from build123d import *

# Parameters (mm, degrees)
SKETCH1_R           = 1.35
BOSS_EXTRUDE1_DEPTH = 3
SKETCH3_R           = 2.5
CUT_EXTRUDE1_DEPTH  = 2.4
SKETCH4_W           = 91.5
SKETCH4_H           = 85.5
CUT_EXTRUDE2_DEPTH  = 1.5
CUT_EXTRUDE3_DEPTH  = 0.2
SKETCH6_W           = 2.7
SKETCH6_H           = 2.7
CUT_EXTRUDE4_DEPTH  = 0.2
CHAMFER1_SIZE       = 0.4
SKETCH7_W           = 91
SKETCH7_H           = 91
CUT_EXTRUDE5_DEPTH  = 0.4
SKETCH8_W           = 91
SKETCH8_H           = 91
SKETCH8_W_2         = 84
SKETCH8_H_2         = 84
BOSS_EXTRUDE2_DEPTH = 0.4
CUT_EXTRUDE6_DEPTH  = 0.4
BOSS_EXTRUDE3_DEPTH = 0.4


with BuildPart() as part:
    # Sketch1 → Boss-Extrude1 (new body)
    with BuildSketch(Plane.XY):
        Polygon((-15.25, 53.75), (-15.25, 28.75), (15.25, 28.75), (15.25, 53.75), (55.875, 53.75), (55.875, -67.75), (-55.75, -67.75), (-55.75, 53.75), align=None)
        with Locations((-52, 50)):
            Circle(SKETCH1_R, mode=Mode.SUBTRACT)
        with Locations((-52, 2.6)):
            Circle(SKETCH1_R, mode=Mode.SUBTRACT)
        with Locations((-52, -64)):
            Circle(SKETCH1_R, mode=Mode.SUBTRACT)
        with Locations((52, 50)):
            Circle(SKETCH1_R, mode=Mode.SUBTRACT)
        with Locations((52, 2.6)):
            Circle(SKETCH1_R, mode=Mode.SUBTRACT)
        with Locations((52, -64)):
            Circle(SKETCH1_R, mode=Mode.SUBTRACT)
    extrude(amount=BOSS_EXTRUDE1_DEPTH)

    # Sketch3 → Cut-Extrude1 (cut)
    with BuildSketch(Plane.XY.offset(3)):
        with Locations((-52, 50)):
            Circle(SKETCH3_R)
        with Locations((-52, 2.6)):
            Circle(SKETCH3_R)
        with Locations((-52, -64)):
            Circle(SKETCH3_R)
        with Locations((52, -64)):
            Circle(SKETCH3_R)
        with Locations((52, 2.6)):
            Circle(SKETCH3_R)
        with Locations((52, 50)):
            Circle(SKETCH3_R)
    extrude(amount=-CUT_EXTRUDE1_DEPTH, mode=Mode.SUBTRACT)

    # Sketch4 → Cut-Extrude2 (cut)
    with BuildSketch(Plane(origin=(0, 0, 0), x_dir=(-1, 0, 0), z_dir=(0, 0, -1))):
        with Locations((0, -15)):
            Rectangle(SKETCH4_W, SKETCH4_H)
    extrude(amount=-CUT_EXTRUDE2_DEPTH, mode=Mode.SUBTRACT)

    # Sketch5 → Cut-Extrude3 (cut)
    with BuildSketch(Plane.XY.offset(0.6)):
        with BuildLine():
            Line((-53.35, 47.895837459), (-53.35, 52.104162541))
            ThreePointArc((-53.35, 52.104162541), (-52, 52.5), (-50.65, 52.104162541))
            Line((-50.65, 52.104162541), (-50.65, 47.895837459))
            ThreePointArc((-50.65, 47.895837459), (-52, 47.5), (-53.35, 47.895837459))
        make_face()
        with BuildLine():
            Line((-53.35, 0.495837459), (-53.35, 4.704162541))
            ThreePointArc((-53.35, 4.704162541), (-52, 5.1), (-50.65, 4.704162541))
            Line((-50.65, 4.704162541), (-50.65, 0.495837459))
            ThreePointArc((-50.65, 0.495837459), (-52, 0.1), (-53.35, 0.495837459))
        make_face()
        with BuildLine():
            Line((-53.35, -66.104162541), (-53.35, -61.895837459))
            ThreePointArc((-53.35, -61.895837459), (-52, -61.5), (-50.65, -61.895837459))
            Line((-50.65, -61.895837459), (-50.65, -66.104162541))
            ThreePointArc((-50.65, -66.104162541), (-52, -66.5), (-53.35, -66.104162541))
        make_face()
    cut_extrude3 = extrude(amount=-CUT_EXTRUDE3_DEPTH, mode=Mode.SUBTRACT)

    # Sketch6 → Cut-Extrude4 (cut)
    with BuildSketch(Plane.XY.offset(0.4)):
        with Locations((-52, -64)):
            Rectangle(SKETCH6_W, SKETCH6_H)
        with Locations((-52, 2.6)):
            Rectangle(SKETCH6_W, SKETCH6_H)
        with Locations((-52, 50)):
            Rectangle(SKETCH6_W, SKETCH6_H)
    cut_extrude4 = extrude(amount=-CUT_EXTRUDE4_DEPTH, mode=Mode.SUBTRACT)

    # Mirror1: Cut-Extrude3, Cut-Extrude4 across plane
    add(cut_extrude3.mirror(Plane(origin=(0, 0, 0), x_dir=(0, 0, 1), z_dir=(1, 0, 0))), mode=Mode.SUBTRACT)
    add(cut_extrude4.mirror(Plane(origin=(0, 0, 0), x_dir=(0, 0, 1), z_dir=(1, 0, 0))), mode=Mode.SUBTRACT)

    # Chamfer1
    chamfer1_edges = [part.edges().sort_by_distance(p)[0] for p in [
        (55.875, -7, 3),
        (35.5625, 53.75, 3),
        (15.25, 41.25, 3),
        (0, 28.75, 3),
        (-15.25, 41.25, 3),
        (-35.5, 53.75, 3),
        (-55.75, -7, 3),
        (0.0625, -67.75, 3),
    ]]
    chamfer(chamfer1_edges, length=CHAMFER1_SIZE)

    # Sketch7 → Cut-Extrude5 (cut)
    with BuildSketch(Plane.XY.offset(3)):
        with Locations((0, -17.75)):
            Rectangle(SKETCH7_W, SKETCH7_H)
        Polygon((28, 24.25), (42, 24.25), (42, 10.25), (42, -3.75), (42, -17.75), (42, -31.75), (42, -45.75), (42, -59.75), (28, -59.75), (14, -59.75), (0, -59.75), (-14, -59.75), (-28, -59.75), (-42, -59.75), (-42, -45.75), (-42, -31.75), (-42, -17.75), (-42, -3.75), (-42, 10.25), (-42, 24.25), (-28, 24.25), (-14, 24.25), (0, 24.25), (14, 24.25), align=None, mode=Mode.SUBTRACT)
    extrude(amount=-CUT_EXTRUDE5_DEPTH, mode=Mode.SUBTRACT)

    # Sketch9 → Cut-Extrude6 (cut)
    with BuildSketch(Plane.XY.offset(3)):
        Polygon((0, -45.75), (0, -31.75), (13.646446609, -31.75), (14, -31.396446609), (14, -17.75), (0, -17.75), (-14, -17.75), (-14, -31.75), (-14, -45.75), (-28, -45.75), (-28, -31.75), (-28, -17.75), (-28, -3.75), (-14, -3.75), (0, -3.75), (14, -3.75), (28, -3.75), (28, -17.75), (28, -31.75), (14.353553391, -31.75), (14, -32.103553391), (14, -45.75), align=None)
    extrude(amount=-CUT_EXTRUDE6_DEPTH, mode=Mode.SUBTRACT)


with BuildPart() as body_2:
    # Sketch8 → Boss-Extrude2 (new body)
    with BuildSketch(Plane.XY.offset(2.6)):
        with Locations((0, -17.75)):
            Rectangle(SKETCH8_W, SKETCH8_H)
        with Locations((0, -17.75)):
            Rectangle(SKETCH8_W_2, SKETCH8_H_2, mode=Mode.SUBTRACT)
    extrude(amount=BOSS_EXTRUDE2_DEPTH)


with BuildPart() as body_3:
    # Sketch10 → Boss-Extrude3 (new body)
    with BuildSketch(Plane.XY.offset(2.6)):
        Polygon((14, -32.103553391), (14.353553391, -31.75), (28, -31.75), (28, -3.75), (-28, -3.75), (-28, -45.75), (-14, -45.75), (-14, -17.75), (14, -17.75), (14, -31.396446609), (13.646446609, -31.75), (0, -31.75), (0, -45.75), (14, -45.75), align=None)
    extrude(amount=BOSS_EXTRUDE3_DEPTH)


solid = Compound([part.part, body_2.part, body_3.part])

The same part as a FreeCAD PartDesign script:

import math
import FreeCAD as App
import Part
import Sketcher
from FreeCAD import Vector
Q = App.Units.Quantity


def edges_at(feature, points):
    """Names of the edges that pass closest to the given points."""
    edges = feature.Shape.Edges
    near = lambda p: min(range(len(edges)), key=lambda i: edges[i].distToShape(Part.Vertex(*p))[0])
    return sorted({f"Edge{near(p) + 1}" for p in points})

doc = App.newDocument("Part")
body = doc.addObject("PartDesign::Body", "Body")

sketch1 = doc.addObject("Sketcher::SketchObject", "Sketch")
body.addObject(sketch1)
sketch1.AttachmentSupport = (doc.XY_Plane, [""])
sketch1.MapMode = "FlatFace"
sketch1.addGeometry([
    Part.LineSegment(Vector(-15.25, 28.75, 0), Vector(-15.25, 53.75, 0)),
    Part.LineSegment(Vector(-15.25, 53.75, 0), Vector(-55.75, 53.75, 0)),
    Part.LineSegment(Vector(-55.75, 53.75, 0), Vector(-55.75, -67.75, 0)),
    Part.LineSegment(Vector(-55.75, -67.75, 0), Vector(55.875, -67.75, 0)),
    Part.LineSegment(Vector(55.875, -67.75, 0), Vector(55.875, 53.75, 0)),
    Part.LineSegment(Vector(55.875, 53.75, 0), Vector(15.25, 53.75, 0)),
    Part.LineSegment(Vector(15.25, 53.75, 0), Vector(15.25, 28.75, 0)),
    Part.LineSegment(Vector(15.25, 28.75, 0), Vector(-15.25, 28.75, 0)),
    Part.Circle(Vector(52, -64, 0), Vector(0, 0, 1), 1.35),
    Part.Circle(Vector(-52, -64, 0), Vector(0, 0, 1), 1.35),
    Part.Circle(Vector(52, 2.6, 0), Vector(0, 0, 1), 1.35),
    Part.Circle(Vector(52, 50, 0), Vector(0, 0, 1), 1.35),
    Part.Circle(Vector(-52, 2.6, 0), Vector(0, 0, 1), 1.35),
    Part.Circle(Vector(-52, 50, 0), Vector(0, 0, 1), 1.35),
], False)
sketch1.addConstraint([
    Sketcher.Constraint("Coincident", 0, 2, 1, 1),
    Sketcher.Constraint("Coincident", 1, 2, 2, 1),
    Sketcher.Constraint("Coincident", 2, 2, 3, 1),
    Sketcher.Constraint("Coincident", 3, 2, 4, 1),
    Sketcher.Constraint("Coincident", 4, 2, 5, 1),
    Sketcher.Constraint("Coincident", 5, 2, 6, 1),
    Sketcher.Constraint("Coincident", 6, 2, 7, 1),
    Sketcher.Constraint("Coincident", 7, 2, 0, 1),
    Sketcher.Constraint("Vertical", 0),
    Sketcher.Constraint("Horizontal", 1),
    Sketcher.Constraint("Vertical", 2),
    Sketcher.Constraint("Horizontal", 3),
    Sketcher.Constraint("Vertical", 4),
    Sketcher.Constraint("Horizontal", 5),
    Sketcher.Constraint("Vertical", 6),
    Sketcher.Constraint("Horizontal", 7),
    Sketcher.Constraint("Equal", 8, 9),
    Sketcher.Constraint("Equal", 9, 10),
    Sketcher.Constraint("Equal", 10, 11),
    Sketcher.Constraint("Equal", 11, 12),
    Sketcher.Constraint("Equal", 12, 13),
    Sketcher.Constraint("Symmetric", 8, 3, 9, 3, -2),
    Sketcher.Constraint("Symmetric", 10, 3, 12, 3, -2),
    Sketcher.Constraint("Symmetric", 11, 3, 13, 3, -2),
    Sketcher.Constraint("Symmetric", 0, 2, 5, 2, -2),
    Sketcher.Constraint("Vertical", 8, 3, 10, 3),
    Sketcher.Constraint("Vertical", 10, 3, 11, 3),
    Sketcher.Constraint("Diameter", 8, Q("2.7 mm")),
    Sketcher.Constraint("DistanceY", 0, 1, 0, 2, Q("25 mm")),
    Sketcher.Constraint("DistanceX", 1, 2, 1, 1, Q("40.5 mm")),
    Sketcher.Constraint("DistanceX", 7, 2, 7, 1, Q("30.5 mm")),
    Sketcher.Constraint("DistanceY", 2, 2, 2, 1, Q("121.5 mm")),
    Sketcher.Constraint("DistanceX", -1, 1, 8, 3, Q("52 mm")),
    Sketcher.Constraint("DistanceY", 8, 3, -1, 1, Q("64 mm")),
    Sketcher.Constraint("DistanceY", -1, 1, 11, 3, Q("50 mm")),
    Sketcher.Constraint("DistanceY", -1, 1, 10, 3, Q("2.6 mm")),
    Sketcher.Constraint("DistanceX", 3, 1, 3, 2, Q("111.625 mm")),
    Sketcher.Constraint("DistanceY", -1, 1, 0, 2, Q("53.75 mm")),
])
pad1 = doc.addObject("PartDesign::Pad", "Pad")
body.addObject(pad1)
pad1.Profile = sketch1
pad1.Length = 3

sketch2 = doc.addObject("Sketcher::SketchObject", "Sketch001")
body.addObject(sketch2)
sketch2.AttachmentSupport = (doc.XY_Plane, [""])
sketch2.MapMode = "FlatFace"
sketch2.AttachmentOffset = App.Placement(Vector(0, 0, 3), App.Rotation())
sketch2.addGeometry([
    Part.Circle(Vector(-52, 50, 0), Vector(0, 0, 1), 2.5),
    Part.Circle(Vector(-52, 2.6, 0), Vector(0, 0, 1), 2.5),
    Part.Circle(Vector(-52, -64, 0), Vector(0, 0, 1), 2.5),
    Part.Circle(Vector(52, -64, 0), Vector(0, 0, 1), 2.5),
    Part.Circle(Vector(52, 2.6, 0), Vector(0, 0, 1), 2.5),
    Part.Circle(Vector(52, 50, 0), Vector(0, 0, 1), 2.5),
], False)
sketch2.addConstraint([
    Sketcher.Constraint("Equal", 0, 1),
    Sketcher.Constraint("Equal", 1, 2),
    Sketcher.Constraint("Equal", 2, 3),
    Sketcher.Constraint("Equal", 3, 4),
    Sketcher.Constraint("Equal", 4, 5),
    Sketcher.Constraint("Symmetric", 2, 3, 3, 3, -2),
    Sketcher.Constraint("Symmetric", 1, 3, 4, 3, -2),
    Sketcher.Constraint("Symmetric", 0, 3, 5, 3, -2),
    Sketcher.Constraint("Vertical", 0, 3, 1, 3),
    Sketcher.Constraint("Vertical", 1, 3, 2, 3),
    Sketcher.Constraint("Diameter", 0, Q("5 mm")),
    Sketcher.Constraint("DistanceX", 0, 3, -1, 1, Q("52 mm")),
    Sketcher.Constraint("DistanceY", -1, 1, 0, 3, Q("50 mm")),
    Sketcher.Constraint("DistanceY", 2, 3, -1, 1, Q("64 mm")),
    Sketcher.Constraint("DistanceY", -1, 1, 1, 3, Q("2.6 mm")),
])
pocket1 = doc.addObject("PartDesign::Pocket", "Pocket")
body.addObject(pocket1)
pocket1.Profile = sketch2
pocket1.Length = 2.4

sketch3 = doc.addObject("Sketcher::SketchObject", "Sketch002")
body.addObject(sketch3)
sketch3.AttachmentSupport = (doc.XY_Plane, [""])
sketch3.MapMode = "FlatFace"
sketch3.addGeometry([
    Part.LineSegment(Vector(45.75, 27.75, 0), Vector(45.75, -57.75, 0)),
    Part.LineSegment(Vector(45.75, -57.75, 0), Vector(-45.75, -57.75, 0)),
    Part.LineSegment(Vector(-45.75, -57.75, 0), Vector(-45.75, 27.75, 0)),
    Part.LineSegment(Vector(-45.75, 27.75, 0), Vector(45.75, 27.75, 0)),
], False)
sketch3.addConstraint([
    Sketcher.Constraint("Coincident", 0, 2, 1, 1),
    Sketcher.Constraint("Coincident", 1, 2, 2, 1),
    Sketcher.Constraint("Coincident", 2, 2, 3, 1),
    Sketcher.Constraint("Coincident", 3, 2, 0, 1),
    Sketcher.Constraint("Vertical", 0),
    Sketcher.Constraint("Horizontal", 1),
    Sketcher.Constraint("Vertical", 2),
    Sketcher.Constraint("Horizontal", 3),
    Sketcher.Constraint("DistanceX", 1, 2, 1, 1, Q("91.5 mm")),
    Sketcher.Constraint("DistanceY", 0, 2, 0, 1, Q("85.5 mm")),
    Sketcher.Constraint("DistanceX", -1, 1, 0, 2, Q("45.75 mm")),
    Sketcher.Constraint("DistanceY", 0, 2, -1, 1, Q("57.75 mm")),
])
pocket2 = doc.addObject("PartDesign::Pocket", "Pocket001")
body.addObject(pocket2)
pocket2.Profile = sketch3
pocket2.Length = 1.5
pocket2.Reversed = True

sketch4 = doc.addObject("Sketcher::SketchObject", "Sketch003")
body.addObject(sketch4)
sketch4.AttachmentSupport = (doc.XY_Plane, [""])
sketch4.MapMode = "FlatFace"
sketch4.AttachmentOffset = App.Placement(Vector(0, 0, 0.6), App.Rotation())
sketch4.addGeometry([
    Part.LineSegment(Vector(-53.35, 52.104163, 0), Vector(-53.35, 47.895837, 0)),
    Part.ArcOfCircle(Part.Circle(Vector(-52, 50, 0), Vector(0, 0, 1), 2.5), math.radians(-122.683639), math.radians(-57.316361)),
    Part.LineSegment(Vector(-50.65, 47.895837, 0), Vector(-50.65, 52.104163, 0)),
    Part.ArcOfCircle(Part.Circle(Vector(-52, 50, 0), Vector(0, 0, 1), 2.5), math.radians(57.316361), math.radians(122.683639)),
    Part.LineSegment(Vector(-53.35, 4.704163, 0), Vector(-53.35, 0.495837, 0)),
    Part.ArcOfCircle(Part.Circle(Vector(-52, 2.6, 0), Vector(0, 0, 1), 2.5), math.radians(-122.683639), math.radians(-57.316361)),
    Part.LineSegment(Vector(-50.65, 0.495837, 0), Vector(-50.65, 4.704163, 0)),
    Part.ArcOfCircle(Part.Circle(Vector(-52, 2.6, 0), Vector(0, 0, 1), 2.5), math.radians(57.316361), math.radians(122.683639)),
    Part.LineSegment(Vector(-53.35, -61.895837, 0), Vector(-53.35, -66.104163, 0)),
    Part.ArcOfCircle(Part.Circle(Vector(-52, -64, 0), Vector(0, 0, 1), 2.5), math.radians(-122.683639), math.radians(-57.316361)),
    Part.LineSegment(Vector(-50.65, -66.104163, 0), Vector(-50.65, -61.895837, 0)),
    Part.ArcOfCircle(Part.Circle(Vector(-52, -64, 0), Vector(0, 0, 1), 2.5), math.radians(57.316361), math.radians(122.683639)),
], False)
sketch4.addConstraint([
    Sketcher.Constraint("Coincident", 0, 2, 1, 1),
    Sketcher.Constraint("Coincident", 1, 2, 2, 1),
    Sketcher.Constraint("Coincident", 2, 2, 3, 1),
    Sketcher.Constraint("Coincident", 3, 2, 0, 1),
    Sketcher.Constraint("Coincident", 4, 2, 5, 1),
    Sketcher.Constraint("Coincident", 5, 2, 6, 1),
    Sketcher.Constraint("Coincident", 6, 2, 7, 1),
    Sketcher.Constraint("Coincident", 7, 2, 4, 1),
    Sketcher.Constraint("Coincident", 8, 2, 9, 1),
    Sketcher.Constraint("Coincident", 9, 2, 10, 1),
    Sketcher.Constraint("Coincident", 10, 2, 11, 1),
    Sketcher.Constraint("Coincident", 11, 2, 8, 1),
    Sketcher.Constraint("Vertical", 0),
    Sketcher.Constraint("Vertical", 2),
    Sketcher.Constraint("Vertical", 4),
    Sketcher.Constraint("Vertical", 6),
    Sketcher.Constraint("Vertical", 8),
    Sketcher.Constraint("Vertical", 10),
    Sketcher.Constraint("Coincident", 3, 3, 1, 3),
    Sketcher.Constraint("Coincident", 7, 3, 5, 3),
    Sketcher.Constraint("Coincident", 11, 3, 9, 3),
    Sketcher.Constraint("Equal", 1, 3),
    Sketcher.Constraint("Equal", 3, 5),
    Sketcher.Constraint("Equal", 5, 7),
    Sketcher.Constraint("Equal", 7, 9),
    Sketcher.Constraint("Equal", 9, 11),
    Sketcher.Constraint("Horizontal", 0, 2, 1, 2),
    Sketcher.Constraint("Horizontal", 4, 2, 5, 2),
    Sketcher.Constraint("Horizontal", 8, 2, 9, 2),
    Sketcher.Constraint("Vertical", 3, 3, 5, 3),
    Sketcher.Constraint("Vertical", 7, 3, 9, 3),
    Sketcher.Constraint("Vertical", 3, 2, 4, 2),
    Sketcher.Constraint("Vertical", 7, 2, 8, 2),
    Sketcher.Constraint("Radius", 1, Q("2.5 mm")),
    Sketcher.Constraint("DistanceX", 1, 3, -1, 1, Q("52 mm")),
    Sketcher.Constraint("DistanceY", -1, 1, 1, 3, Q("50 mm")),
    Sketcher.Constraint("DistanceY", 9, 3, -1, 1, Q("64 mm")),
    Sketcher.Constraint("DistanceY", -1, 1, 5, 3, Q("2.6 mm")),
    Sketcher.Constraint("DistanceX", 0, 2, 1, 2, Q("2.7 mm")),
])
pocket3 = doc.addObject("PartDesign::Pocket", "Pocket002")
body.addObject(pocket3)
pocket3.Profile = sketch4
pocket3.Length = 0.2

sketch5 = doc.addObject("Sketcher::SketchObject", "Sketch004")
body.addObject(sketch5)
sketch5.AttachmentSupport = (doc.XY_Plane, [""])
sketch5.MapMode = "FlatFace"
sketch5.AttachmentOffset = App.Placement(Vector(0, 0, 0.4), App.Rotation())
sketch5.addGeometry([
    Part.LineSegment(Vector(-53.35, -62.65, 0), Vector(-53.35, -65.35, 0)),
    Part.LineSegment(Vector(-53.35, -65.35, 0), Vector(-50.65, -65.35, 0)),
    Part.LineSegment(Vector(-50.65, -65.35, 0), Vector(-50.65, -62.65, 0)),
    Part.LineSegment(Vector(-50.65, -62.65, 0), Vector(-53.35, -62.65, 0)),
    Part.LineSegment(Vector(-53.35, 3.95, 0), Vector(-53.35, 1.25, 0)),
    Part.LineSegment(Vector(-53.35, 1.25, 0), Vector(-50.65, 1.25, 0)),
    Part.LineSegment(Vector(-50.65, 1.25, 0), Vector(-50.65, 3.95, 0)),
    Part.LineSegment(Vector(-50.65, 3.95, 0), Vector(-53.35, 3.95, 0)),
    Part.LineSegment(Vector(-53.35, 51.35, 0), Vector(-53.35, 48.65, 0)),
    Part.LineSegment(Vector(-53.35, 48.65, 0), Vector(-50.65, 48.65, 0)),
    Part.LineSegment(Vector(-50.65, 48.65, 0), Vector(-50.65, 51.35, 0)),
    Part.LineSegment(Vector(-50.65, 51.35, 0), Vector(-53.35, 51.35, 0)),
], False)
sketch5.addConstraint([
    Sketcher.Constraint("Coincident", 0, 2, 1, 1),
    Sketcher.Constraint("Coincident", 1, 2, 2, 1),
    Sketcher.Constraint("Coincident", 2, 2, 3, 1),
    Sketcher.Constraint("Coincident", 3, 2, 0, 1),
    Sketcher.Constraint("Coincident", 4, 2, 5, 1),
    Sketcher.Constraint("Coincident", 5, 2, 6, 1),
    Sketcher.Constraint("Coincident", 6, 2, 7, 1),
    Sketcher.Constraint("Coincident", 7, 2, 4, 1),
    Sketcher.Constraint("Coincident", 8, 2, 9, 1),
    Sketcher.Constraint("Coincident", 9, 2, 10, 1),
    Sketcher.Constraint("Coincident", 10, 2, 11, 1),
    Sketcher.Constraint("Coincident", 11, 2, 8, 1),
    Sketcher.Constraint("Vertical", 0),
    Sketcher.Constraint("Horizontal", 1),
    Sketcher.Constraint("Vertical", 2),
    Sketcher.Constraint("Horizontal", 3),
    Sketcher.Constraint("Vertical", 4),
    Sketcher.Constraint("Horizontal", 5),
    Sketcher.Constraint("Vertical", 6),
    Sketcher.Constraint("Horizontal", 7),
    Sketcher.Constraint("Vertical", 8),
    Sketcher.Constraint("Horizontal", 9),
    Sketcher.Constraint("Vertical", 10),
    Sketcher.Constraint("Horizontal", 11),
    Sketcher.Constraint("Vertical", 3, 2, 4, 2),
    Sketcher.Constraint("Vertical", 2, 2, 5, 2),
    Sketcher.Constraint("Vertical", 7, 2, 8, 2),
    Sketcher.Constraint("Vertical", 6, 2, 9, 2),
    Sketcher.Constraint("Equal", 11, 0),
    Sketcher.Constraint("Equal", 2, 4),
    Sketcher.Constraint("Equal", 6, 8),
    Sketcher.Constraint("DistanceX", 1, 1, 1, 2, Q("2.7 mm")),
    Sketcher.Constraint("DistanceY", 3, 2, 4, 2, Q("63.9 mm")),
    Sketcher.Constraint("DistanceY", 7, 2, 8, 2, Q("44.7 mm")),
    Sketcher.Constraint("DistanceX", 0, 2, -1, 1, Q("53.35 mm")),
    Sketcher.Constraint("DistanceY", 0, 2, -1, 1, Q("65.35 mm")),
])
pocket4 = doc.addObject("PartDesign::Pocket", "Pocket003")
body.addObject(pocket4)
pocket4.Profile = sketch5
pocket4.Length = 0.2
doc.recompute()

mirrored = doc.addObject("PartDesign::Mirrored", "Mirrored")
body.addObject(mirrored)
mirrored.Originals = [pocket3, pocket4]
mirrored.MirrorPlane = (doc.YZ_Plane, [""])
body.Tip = mirrored
doc.recompute()

chamfer = doc.addObject("PartDesign::Chamfer", "Chamfer")
body.addObject(chamfer)
chamfer.Base = (mirrored, edges_at(mirrored, [
    (55.875, -7, 3),
    (35.562, 53.75, 3),
    (15.25, 41.25, 3),
    (0, 28.75, 3),
    (-15.25, 41.25, 3),
    (-35.5, 53.75, 3),
    (-55.75, -7, 3),
    (0.062, -67.75, 3),
]))
chamfer.Size = 0.4

sketch6 = doc.addObject("Sketcher::SketchObject", "Sketch005")
body.addObject(sketch6)
sketch6.AttachmentSupport = (doc.XY_Plane, [""])
sketch6.MapMode = "FlatFace"
sketch6.AttachmentOffset = App.Placement(Vector(0, 0, 3), App.Rotation())
sketch6.addGeometry([
    Part.LineSegment(Vector(-45.5, 27.75, 0), Vector(-45.5, -63.25, 0)),
    Part.LineSegment(Vector(-45.5, -63.25, 0), Vector(45.5, -63.25, 0)),
    Part.LineSegment(Vector(45.5, -63.25, 0), Vector(45.5, 27.75, 0)),
    Part.LineSegment(Vector(45.5, 27.75, 0), Vector(-45.5, 27.75, 0)),
    Part.LineSegment(Vector(-42, 24.25, 0), Vector(42, 24.25, 0)),
    Part.LineSegment(Vector(42, 24.25, 0), Vector(42, -59.75, 0)),
    Part.LineSegment(Vector(42, -59.75, 0), Vector(-42, -59.75, 0)),
    Part.LineSegment(Vector(-42, -59.75, 0), Vector(-42, 24.25, 0)),
], False)
sketch6.addConstraint([
    Sketcher.Constraint("Coincident", 0, 2, 1, 1),
    Sketcher.Constraint("Coincident", 1, 2, 2, 1),
    Sketcher.Constraint("Coincident", 2, 2, 3, 1),
    Sketcher.Constraint("Coincident", 3, 2, 0, 1),
    Sketcher.Constraint("Coincident", 4, 2, 5, 1),
    Sketcher.Constraint("Coincident", 5, 2, 6, 1),
    Sketcher.Constraint("Coincident", 6, 2, 7, 1),
    Sketcher.Constraint("Coincident", 7, 2, 4, 1),
    Sketcher.Constraint("Vertical", 0),
    Sketcher.Constraint("Horizontal", 1),
    Sketcher.Constraint("Vertical", 2),
    Sketcher.Constraint("Horizontal", 3),
    Sketcher.Constraint("Horizontal", 4),
    Sketcher.Constraint("Vertical", 5),
    Sketcher.Constraint("Horizontal", 6),
    Sketcher.Constraint("Vertical", 7),
    Sketcher.Constraint("Equal", 3, 0),
    Sketcher.Constraint("Equal", 6, 5),
    Sketcher.Constraint("DistanceX", 1, 1, 1, 2, Q("91 mm")),
    Sketcher.Constraint("DistanceX", 4, 1, 4, 2, Q("84 mm")),
    Sketcher.Constraint("DistanceX", -1, 1, 4, 2, Q("42 mm")),
    Sketcher.Constraint("DistanceX", 0, 2, -1, 1, Q("45.5 mm")),
    Sketcher.Constraint("DistanceY", 4, 2, 2, 2, Q("3.5 mm")),
    Sketcher.Constraint("DistanceY", 0, 2, -1, 1, Q("63.25 mm")),
])
pocket5 = doc.addObject("PartDesign::Pocket", "Pocket004")
body.addObject(pocket5)
pocket5.Profile = sketch6
pocket5.Length = 0.4

sketch7 = doc.addObject("Sketcher::SketchObject", "Sketch006")
body.addObject(sketch7)
sketch7.AttachmentSupport = (doc.XY_Plane, [""])
sketch7.MapMode = "FlatFace"
sketch7.AttachmentOffset = App.Placement(Vector(0, 0, 3), App.Rotation())
sketch7.addGeometry([
    Part.LineSegment(Vector(0, -31.75, 0), Vector(0, -45.75, 0)),
    Part.LineSegment(Vector(0, -45.75, 0), Vector(14, -45.75, 0)),
    Part.LineSegment(Vector(14, -45.75, 0), Vector(14, -32.103553, 0)),
    Part.LineSegment(Vector(14, -32.103553, 0), Vector(14.353553, -31.75, 0)),
    Part.LineSegment(Vector(14.353553, -31.75, 0), Vector(28, -31.75, 0)),
    Part.LineSegment(Vector(28, -31.75, 0), Vector(28, -3.75, 0)),
    Part.LineSegment(Vector(28, -3.75, 0), Vector(-28, -3.75, 0)),
    Part.LineSegment(Vector(-28, -3.75, 0), Vector(-28, -45.75, 0)),
    Part.LineSegment(Vector(-28, -45.75, 0), Vector(-14, -45.75, 0)),
    Part.LineSegment(Vector(-14, -45.75, 0), Vector(-14, -17.75, 0)),
    Part.LineSegment(Vector(-14, -17.75, 0), Vector(14, -17.75, 0)),
    Part.LineSegment(Vector(14, -17.75, 0), Vector(14, -31.396447, 0)),
    Part.LineSegment(Vector(14, -31.396447, 0), Vector(13.646447, -31.75, 0)),
    Part.LineSegment(Vector(13.646447, -31.75, 0), Vector(0, -31.75, 0)),
], False)
sketch7.addConstraint([
    Sketcher.Constraint("Coincident", 0, 2, 1, 1),
    Sketcher.Constraint("Coincident", 1, 2, 2, 1),
    Sketcher.Constraint("Coincident", 2, 2, 3, 1),
    Sketcher.Constraint("Coincident", 3, 2, 4, 1),
    Sketcher.Constraint("Coincident", 4, 2, 5, 1),
    Sketcher.Constraint("Coincident", 5, 2, 6, 1),
    Sketcher.Constraint("Coincident", 6, 2, 7, 1),
    Sketcher.Constraint("Coincident", 7, 2, 8, 1),
    Sketcher.Constraint("Coincident", 8, 2, 9, 1),
    Sketcher.Constraint("Coincident", 9, 2, 10, 1),
    Sketcher.Constraint("Coincident", 10, 2, 11, 1),
    Sketcher.Constraint("Coincident", 11, 2, 12, 1),
    Sketcher.Constraint("Coincident", 12, 2, 13, 1),
    Sketcher.Constraint("Coincident", 13, 2, 0, 1),
    Sketcher.Constraint("Vertical", 0),
    Sketcher.Constraint("Horizontal", 1),
    Sketcher.Constraint("Vertical", 2),
    Sketcher.Constraint("Horizontal", 4),
    Sketcher.Constraint("Vertical", 5),
    Sketcher.Constraint("Horizontal", 6),
    Sketcher.Constraint("Vertical", 7),
    Sketcher.Constraint("Horizontal", 8),
    Sketcher.Constraint("Vertical", 9),
    Sketcher.Constraint("Horizontal", 10),
    Sketcher.Constraint("Vertical", 11),
    Sketcher.Constraint("Horizontal", 13),
    Sketcher.Constraint("Symmetric", 1, 2, 8, 2, -2),
    Sketcher.Constraint("PointOnObject", 0, 2, -2),
    Sketcher.Constraint("Parallel", 3, 12),
    Sketcher.Constraint("Horizontal", 4, 2, 12, 2),
    Sketcher.Constraint("Vertical", 2, 2, 10, 2),
    Sketcher.Constraint("Equal", 1, 8),
    Sketcher.Constraint("Equal", 4, 13),
    Sketcher.Constraint("Equal", 8, 0),
    Sketcher.Constraint("Equal", 13, 2),
    Sketcher.Constraint("Equal", 10, 5),
    Sketcher.Constraint("Equal", 5, 9),
    Sketcher.Constraint("Equal", 2, 11),
    Sketcher.Constraint("DistanceX", 1, 1, 1, 2, Q("14 mm")),
    Sketcher.Constraint("Distance", 3, Q("0.5 mm")),
    Sketcher.Constraint("DistanceY", 0, 2, -1, 1, Q("45.75 mm")),
])
pocket6 = doc.addObject("PartDesign::Pocket", "Pocket005")
body.addObject(pocket6)
pocket6.Profile = sketch7
pocket6.Length = 0.4
body2 = doc.addObject("PartDesign::Body", "Body001")

sketch8 = doc.addObject("Sketcher::SketchObject", "Sketch007")
body2.addObject(sketch8)
sketch8.AttachmentSupport = (doc.getObject("XY_Plane001"), [""])
sketch8.MapMode = "FlatFace"
sketch8.AttachmentOffset = App.Placement(Vector(0, 0, 2.6), App.Rotation())
sketch8.addGeometry([
    Part.LineSegment(Vector(-45.5, 27.75, 0), Vector(-45.5, -63.25, 0)),
    Part.LineSegment(Vector(-45.5, -63.25, 0), Vector(45.5, -63.25, 0)),
    Part.LineSegment(Vector(45.5, -63.25, 0), Vector(45.5, 27.75, 0)),
    Part.LineSegment(Vector(45.5, 27.75, 0), Vector(-45.5, 27.75, 0)),
    Part.LineSegment(Vector(42, -59.75, 0), Vector(-42, -59.75, 0)),
    Part.LineSegment(Vector(-42, -59.75, 0), Vector(-42, 24.25, 0)),
    Part.LineSegment(Vector(-42, 24.25, 0), Vector(42, 24.25, 0)),
    Part.LineSegment(Vector(42, 24.25, 0), Vector(42, -59.75, 0)),
], False)
sketch8.addConstraint([
    Sketcher.Constraint("Coincident", 0, 2, 1, 1),
    Sketcher.Constraint("Coincident", 1, 2, 2, 1),
    Sketcher.Constraint("Coincident", 2, 2, 3, 1),
    Sketcher.Constraint("Coincident", 3, 2, 0, 1),
    Sketcher.Constraint("Coincident", 4, 2, 5, 1),
    Sketcher.Constraint("Coincident", 5, 2, 6, 1),
    Sketcher.Constraint("Coincident", 6, 2, 7, 1),
    Sketcher.Constraint("Coincident", 7, 2, 4, 1),
    Sketcher.Constraint("Vertical", 0),
    Sketcher.Constraint("Horizontal", 1),
    Sketcher.Constraint("Vertical", 2),
    Sketcher.Constraint("Horizontal", 3),
    Sketcher.Constraint("Horizontal", 4),
    Sketcher.Constraint("Vertical", 5),
    Sketcher.Constraint("Horizontal", 6),
    Sketcher.Constraint("Vertical", 7),
    Sketcher.Constraint("Equal", 3, 0),
    Sketcher.Constraint("Equal", 6, 5),
    Sketcher.Constraint("DistanceX", 1, 1, 1, 2, Q("91 mm")),
    Sketcher.Constraint("DistanceX", 4, 2, 4, 1, Q("84 mm")),
    Sketcher.Constraint("DistanceX", 4, 2, -1, 1, Q("42 mm")),
    Sketcher.Constraint("DistanceX", 0, 2, -1, 1, Q("45.5 mm")),
    Sketcher.Constraint("DistanceY", 0, 2, 4, 2, Q("3.5 mm")),
    Sketcher.Constraint("DistanceY", 0, 2, -1, 1, Q("63.25 mm")),
])
pad2 = doc.addObject("PartDesign::Pad", "Pad001")
body2.addObject(pad2)
pad2.Profile = sketch8
pad2.Length = 0.4
body3 = doc.addObject("PartDesign::Body", "Body002")

sketch9 = doc.addObject("Sketcher::SketchObject", "Sketch008")
body3.addObject(sketch9)
sketch9.AttachmentSupport = (doc.getObject("XY_Plane002"), [""])
sketch9.MapMode = "FlatFace"
sketch9.AttachmentOffset = App.Placement(Vector(0, 0, 2.6), App.Rotation())
sketch9.addGeometry([
    Part.LineSegment(Vector(14, -32.103553, 0), Vector(14.353553, -31.75, 0)),
    Part.LineSegment(Vector(14.353553, -31.75, 0), Vector(28, -31.75, 0)),
    Part.LineSegment(Vector(28, -31.75, 0), Vector(28, -3.75, 0)),
    Part.LineSegment(Vector(28, -3.75, 0), Vector(-28, -3.75, 0)),
    Part.LineSegment(Vector(-28, -3.75, 0), Vector(-28, -45.75, 0)),
    Part.LineSegment(Vector(-28, -45.75, 0), Vector(-14, -45.75, 0)),
    Part.LineSegment(Vector(-14, -45.75, 0), Vector(-14, -17.75, 0)),
    Part.LineSegment(Vector(-14, -17.75, 0), Vector(14, -17.75, 0)),
    Part.LineSegment(Vector(14, -17.75, 0), Vector(14, -31.396447, 0)),
    Part.LineSegment(Vector(14, -31.396447, 0), Vector(13.646447, -31.75, 0)),
    Part.LineSegment(Vector(13.646447, -31.75, 0), Vector(0, -31.75, 0)),
    Part.LineSegment(Vector(0, -31.75, 0), Vector(0, -45.75, 0)),
    Part.LineSegment(Vector(0, -45.75, 0), Vector(14, -45.75, 0)),
    Part.LineSegment(Vector(14, -45.75, 0), Vector(14, -32.103553, 0)),
], False)
sketch9.addConstraint([
    Sketcher.Constraint("Coincident", 0, 2, 1, 1),
    Sketcher.Constraint("Coincident", 1, 2, 2, 1),
    Sketcher.Constraint("Coincident", 2, 2, 3, 1),
    Sketcher.Constraint("Coincident", 3, 2, 4, 1),
    Sketcher.Constraint("Coincident", 4, 2, 5, 1),
    Sketcher.Constraint("Coincident", 5, 2, 6, 1),
    Sketcher.Constraint("Coincident", 6, 2, 7, 1),
    Sketcher.Constraint("Coincident", 7, 2, 8, 1),
    Sketcher.Constraint("Coincident", 8, 2, 9, 1),
    Sketcher.Constraint("Coincident", 9, 2, 10, 1),
    Sketcher.Constraint("Coincident", 10, 2, 11, 1),
    Sketcher.Constraint("Coincident", 11, 2, 12, 1),
    Sketcher.Constraint("Coincident", 12, 2, 13, 1),
    Sketcher.Constraint("Coincident", 13, 2, 0, 1),
    Sketcher.Constraint("Horizontal", 1),
    Sketcher.Constraint("Vertical", 2),
    Sketcher.Constraint("Horizontal", 3),
    Sketcher.Constraint("Vertical", 4),
    Sketcher.Constraint("Horizontal", 5),
    Sketcher.Constraint("Vertical", 6),
    Sketcher.Constraint("Horizontal", 7),
    Sketcher.Constraint("Vertical", 8),
    Sketcher.Constraint("Horizontal", 10),
    Sketcher.Constraint("Vertical", 11),
    Sketcher.Constraint("Horizontal", 12),
    Sketcher.Constraint("Vertical", 13),
    Sketcher.Constraint("Symmetric", 5, 2, 12, 2, -2),
    Sketcher.Constraint("PointOnObject", 10, 2, -2),
    Sketcher.Constraint("Parallel", 0, 9),
    Sketcher.Constraint("Horizontal", 1, 2, 9, 2),
    Sketcher.Constraint("Vertical", 8, 2, 12, 2),
    Sketcher.Constraint("Equal", 1, 10),
    Sketcher.Constraint("Equal", 5, 12),
    Sketcher.Constraint("Equal", 7, 2),
    Sketcher.Constraint("Equal", 2, 6),
    Sketcher.Constraint("Equal", 10, 8),
    Sketcher.Constraint("Equal", 12, 11),
    Sketcher.Constraint("Equal", 8, 13),
    Sketcher.Constraint("DistanceX", 3, 2, 3, 1, Q("56 mm")),
    Sketcher.Constraint("Distance", 0, Q("0.5 mm")),
    Sketcher.Constraint("DistanceY", 0, 2, -1, 1, Q("31.75 mm")),
])
pad3 = doc.addObject("PartDesign::Pad", "Pad002")
body3.addObject(pad3)
pad3.Profile = sketch9
pad3.Length = 0.4

doc.recompute()
